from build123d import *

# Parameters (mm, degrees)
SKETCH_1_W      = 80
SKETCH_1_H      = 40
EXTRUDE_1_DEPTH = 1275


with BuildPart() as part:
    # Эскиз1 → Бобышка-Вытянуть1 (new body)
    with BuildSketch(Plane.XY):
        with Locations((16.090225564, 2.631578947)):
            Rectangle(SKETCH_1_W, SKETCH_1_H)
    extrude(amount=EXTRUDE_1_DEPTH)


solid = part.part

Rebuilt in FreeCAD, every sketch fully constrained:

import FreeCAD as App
import Part
import Sketcher

V = App.Vector
Q = App.Units.Quantity

doc = App.newDocument("Part")
body = doc.addObject("PartDesign::Body", "Body")

# Sketch on XY plane
sketch1 = body.newObject("Sketcher::SketchObject", "Sketch")
sketch1.AttachmentSupport = (doc.getObject("XY_Plane"), [""])
sketch1.MapMode = "FlatFace"
sketch1.addGeometry([
    Part.LineSegment(V(-24, 23, 0), V(-24, -17, 0)),
    Part.LineSegment(V(-24, -17, 0), V(56, -17, 0)),
    Part.LineSegment(V(56, -17, 0), V(56, 23, 0)),
    Part.LineSegment(V(56, 23, 0), V(-24, 23, 0)),
], False)
sketch1.addConstraint([
    Sketcher.Constraint("Coincident", 0, 2, 1, 1),
    Sketcher.Constraint("Coincident", 1, 2, 2, 1),
    Sketcher.Constraint("Coincident", 2, 2, 3, 1),
    Sketcher.Constraint("Coincident", 3, 2, 0, 1),
    Sketcher.Constraint("Vertical", 0),
    Sketcher.Constraint("Horizontal", 1),
    Sketcher.Constraint("Vertical", 2),
    Sketcher.Constraint("Horizontal", 3),
    Sketcher.Constraint("DistanceX", 1, 1, 1, 2, Q("80 mm")),
    Sketcher.Constraint("DistanceY", 0, 2, 0, 1, Q("40 mm")),
    Sketcher.Constraint("DistanceY", 0, 2, -1, 1, Q("17.368421 mm")),
    Sketcher.Constraint("DistanceX", 0, 2, -1, 1, Q("23.909774 mm")),
])
pad1 = body.newObject("PartDesign::Pad", "Pad")
pad1.Profile = sketch1
pad1.Length = 1275

doc.recompute()
